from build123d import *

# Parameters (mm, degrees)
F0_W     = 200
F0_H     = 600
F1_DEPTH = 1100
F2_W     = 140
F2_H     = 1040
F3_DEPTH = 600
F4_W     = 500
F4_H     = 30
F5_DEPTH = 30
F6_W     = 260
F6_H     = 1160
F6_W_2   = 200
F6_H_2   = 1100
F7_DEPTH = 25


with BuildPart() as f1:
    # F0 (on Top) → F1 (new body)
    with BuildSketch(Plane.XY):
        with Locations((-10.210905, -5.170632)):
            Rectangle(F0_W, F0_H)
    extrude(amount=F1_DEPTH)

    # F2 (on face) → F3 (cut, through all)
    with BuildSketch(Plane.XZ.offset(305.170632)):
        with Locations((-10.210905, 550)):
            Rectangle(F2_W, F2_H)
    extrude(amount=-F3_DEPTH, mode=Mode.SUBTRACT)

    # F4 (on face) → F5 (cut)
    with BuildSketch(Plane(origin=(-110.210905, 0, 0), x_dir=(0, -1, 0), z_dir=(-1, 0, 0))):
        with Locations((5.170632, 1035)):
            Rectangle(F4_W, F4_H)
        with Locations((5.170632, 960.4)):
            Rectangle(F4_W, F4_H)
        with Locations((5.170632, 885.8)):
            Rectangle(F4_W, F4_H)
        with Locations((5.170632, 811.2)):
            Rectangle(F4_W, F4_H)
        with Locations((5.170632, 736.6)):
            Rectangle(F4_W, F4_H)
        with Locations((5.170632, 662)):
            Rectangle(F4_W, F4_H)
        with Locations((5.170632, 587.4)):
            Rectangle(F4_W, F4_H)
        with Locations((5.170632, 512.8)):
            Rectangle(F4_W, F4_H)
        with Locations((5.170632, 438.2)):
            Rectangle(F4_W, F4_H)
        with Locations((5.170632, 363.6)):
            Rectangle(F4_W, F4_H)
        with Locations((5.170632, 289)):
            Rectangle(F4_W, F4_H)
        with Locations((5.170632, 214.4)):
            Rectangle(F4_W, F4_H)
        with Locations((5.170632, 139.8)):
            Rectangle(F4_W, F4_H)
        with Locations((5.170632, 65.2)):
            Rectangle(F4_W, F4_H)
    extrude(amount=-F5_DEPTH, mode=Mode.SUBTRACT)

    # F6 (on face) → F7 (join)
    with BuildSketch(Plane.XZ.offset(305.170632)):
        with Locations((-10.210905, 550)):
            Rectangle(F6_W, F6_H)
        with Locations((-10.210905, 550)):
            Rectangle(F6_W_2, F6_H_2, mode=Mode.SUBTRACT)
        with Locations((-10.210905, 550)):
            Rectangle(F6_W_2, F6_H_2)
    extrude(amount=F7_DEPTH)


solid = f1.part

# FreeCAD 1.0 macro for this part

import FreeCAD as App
import Part
import Sketcher


def add_polygon(sketch, points):
    """Adds a closed chain of lines whose ends are joined by coincident constraints."""
    first, n = sketch.GeometryCount, len(points)
    for a, b in zip(points, points[1:] + points[:1]):
        sketch.addGeometry(Part.LineSegment(App.Vector(*a, 0), App.Vector(*b, 0)), False)
    for i in range(n):
        sketch.addConstraint(Sketcher.Constraint("Coincident", first + i, 2, first + (i + 1) % n, 1))

doc = App.newDocument("Part")
body = doc.addObject("PartDesign::Body", "Body")

# Sketch on XY plane
sketch1 = doc.addObject("Sketcher::SketchObject", "Sketch")
body.addObject(sketch1)
sketch1.AttachmentSupport = (doc.XY_Plane, [""])
sketch1.MapMode = "FlatFace"
add_polygon(sketch1, [(-110, 295), (-110, -305), (90, -305), (90, 295)])  # lines 0-3
sketch1.addConstraint([
    Sketcher.Constraint("Vertical", 0),
    Sketcher.Constraint("Horizontal", 1),
    Sketcher.Constraint("Vertical", 2),
    Sketcher.Constraint("Horizontal", 3),
    Sketcher.Constraint("DistanceX", 1, 1, 1, 2, 200.0),
    Sketcher.Constraint("DistanceY", 0, 2, 0, 1, 600.0),
    Sketcher.Constraint("DistanceY", 0, 2, -1, 1, 305.170632),
    Sketcher.Constraint("DistanceX", 0, 2, -1, 1, 110.210905),
])
pad1 = doc.addObject("PartDesign::Pad", "Pad")
body.addObject(pad1)
pad1.Profile = sketch1
pad1.Length = 1100

# Sketch on XZ plane
sketch2 = doc.addObject("Sketcher::SketchObject", "Sketch001")
body.addObject(sketch2)
sketch2.AttachmentSupport = (doc.XZ_Plane, [""])
sketch2.MapMode = "FlatFace"
sketch2.AttachmentOffset = App.Placement(App.Vector(0, 0, 305.170632), App.Rotation())
add_polygon(sketch2, [(-80, 1070), (-80, 30), (60, 30), (60, 1070)])  # lines 0-3
sketch2.addConstraint([
    Sketcher.Constraint("Vertical", 0),
    Sketcher.Constraint("Horizontal", 1),
    Sketcher.Constraint("Vertical", 2),
    Sketcher.Constraint("Horizontal", 3),
    Sketcher.Constraint("DistanceX", 1, 1, 1, 2, 140.0),
    Sketcher.Constraint("DistanceY", 0, 2, 0, 1, 1040.0),
    Sketcher.Constraint("DistanceY", -1, 1, 0, 2, 30.0),
    Sketcher.Constraint("DistanceX", 0, 2, -1, 1, 80.210905),
])
pocket1 = doc.addObject("PartDesign::Pocket", "Pocket")
body.addObject(pocket1)
pocket1.Profile = sketch2
pocket1.Type = "ThroughAll"

# Sketch on YZ plane
sketch3 = doc.addObject("Sketcher::SketchObject", "Sketch002")
body.addObject(sketch3)
sketch3.AttachmentSupport = (doc.YZ_Plane, [""])
sketch3.MapMode = "FlatFace"
sketch3.AttachmentOffset = App.Placement(App.Vector(0, 0, -110.210905), App.Rotation())
add_polygon(sketch3, [(245, 1050), (245, 1020), (-255, 1020), (-255, 1050)])  # lines 0-3
add_polygon(sketch3, [(245, 975), (245, 945), (-255, 945), (-255, 975)])  # lines 4-7
add_polygon(sketch3, [(245, 901), (245, 871), (-255, 871), (-255, 901)])  # lines 8-11
add_polygon(sketch3, [(245, 826), (245, 796), (-255, 796), (-255, 826)])  # lines 12-15
add_polygon(sketch3, [(245, 752), (245, 722), (-255, 722), (-255, 752)])  # lines 16-19
add_polygon(sketch3, [(245, 677), (245, 647), (-255, 647), (-255, 677)])  # lines 20-23
add_polygon(sketch3, [(245, 602), (245, 572), (-255, 572), (-255, 602)])  # lines 24-27
add_polygon(sketch3, [(245, 528), (245, 498), (-255, 498), (-255, 528)])  # lines 28-31
add_polygon(sketch3, [(245, 453), (245, 423), (-255, 423), (-255, 453)])  # lines 32-35
add_polygon(sketch3, [(245, 379), (245, 349), (-255, 349), (-255, 379)])  # lines 36-39
add_polygon(sketch3, [(245, 304), (245, 274), (-255, 274), (-255, 304)])  # lines 40-43
add_polygon(sketch3, [(245, 229), (245, 199), (-255, 199), (-255, 229)])  # lines 44-47
add_polygon(sketch3, [(245, 155), (245, 125), (-255, 125), (-255, 155)])  # lines 48-51
add_polygon(sketch3, [(245, 80), (245, 50), (-255, 50), (-255, 80)])  # lines 52-55
sketch3.addConstraint([
    Sketcher.Constraint("Vertical", 0),
    Sketcher.Constraint("Horizontal", 1),
    Sketcher.Constraint("Vertical", 2),
    Sketcher.Constraint("Horizontal", 3),
    Sketcher.Constraint("Vertical", 4),
    Sketcher.Constraint("Horizontal", 5),
    Sketcher.Constraint("Vertical", 6),
    Sketcher.Constraint("Horizontal", 7),
    Sketcher.Constraint("Vertical", 8),
    Sketcher.Constraint("Horizontal", 9),
    Sketcher.Constraint("Vertical", 10),
    Sketcher.Constraint("Horizontal", 11),
    Sketcher.Constraint("Vertical", 12),
    Sketcher.Constraint("Horizontal", 13),
    Sketcher.Constraint("Vertical", 14),
    Sketcher.Constraint("Horizontal", 15),
    Sketcher.Constraint("Vertical", 16),
    Sketcher.Constraint("Horizontal", 17),
    Sketcher.Constraint("Vertical", 18),
    Sketcher.Constraint("Horizontal", 19),
    Sketcher.Constraint("Vertical", 20),
    Sketcher.Constraint("Horizontal", 21),
    Sketcher.Constraint("Vertical", 22),
    Sketcher.Constraint("Horizontal", 23),
    Sketcher.Constraint("Vertical", 24),
    Sketcher.Constraint("Horizontal", 25),
    Sketcher.Constraint("Vertical", 26),
    Sketcher.Constraint("Horizontal", 27),
    Sketcher.Constraint("Vertical", 28),
    Sketcher.Constraint("Horizontal", 29),
    Sketcher.Constraint("Vertical", 30),
    Sketcher.Constraint("Horizontal", 31),
    Sketcher.Constraint("Vertical", 32),
    Sketcher.Constraint("Horizontal", 33),
    Sketcher.Constraint("Vertical", 34),
    Sketcher.Constraint("Horizontal", 35),
    Sketcher.Constraint("Vertical", 36),
    Sketcher.Constraint("Horizontal", 37),
    Sketcher.Constraint("Vertical", 38),
    Sketcher.Constraint("Horizontal", 39),
    Sketcher.Constraint("Vertical", 40),
    Sketcher.Constraint("Horizontal", 41),
    Sketcher.Constraint("Vertical", 42),
    Sketcher.Constraint("Horizontal", 43),
    Sketcher.Constraint("Vertical", 44),
    Sketcher.Constraint("Horizontal", 45),
    Sketcher.Constraint("Vertical", 46),
    Sketcher.Constraint("Horizontal", 47),
    Sketcher.Constraint("Vertical", 48),
    Sketcher.Constraint("Horizontal", 49),
    Sketcher.Constraint("Vertical", 50),
    Sketcher.Constraint("Horizontal", 51),
    Sketcher.Constraint("Vertical", 52),
    Sketcher.Constraint("Horizontal", 53),
    Sketcher.Constraint("Vertical", 54),
    Sketcher.Constraint("Horizontal", 55),
    Sketcher.Constraint("Vertical", 3, 2, 4, 2),
    Sketcher.Constraint("Vertical", 2, 2, 5, 2),
    Sketcher.Constraint("Vertical", 7, 2, 8, 2),
    Sketcher.Constraint("Vertical", 6, 2, 9, 2),
    Sketcher.Constraint("Vertical", 11, 2, 12, 2),
    Sketcher.Constraint("Vertical", 10, 2, 13, 2),
    Sketcher.Constraint("Vertical", 15, 2, 16, 2),
    Sketcher.Constraint("Vertical", 14, 2, 17, 2),
    Sketcher.Constraint("Vertical", 19, 2, 20, 2),
    Sketcher.Constraint("Vertical", 18, 2, 21, 2),
    Sketcher.Constraint("Vertical", 23, 2, 24, 2),
    Sketcher.Constraint("Vertical", 22, 2, 25, 2),
    Sketcher.Constraint("Vertical", 27, 2, 28, 2),
    Sketcher.Constraint("Vertical", 26, 2, 29, 2),
    Sketcher.Constraint("Vertical", 31, 2, 32, 2),
    Sketcher.Constraint("Vertical", 30, 2, 33, 2),
    Sketcher.Constraint("Vertical", 35, 2, 36, 2),
    Sketcher.Constraint("Vertical", 34, 2, 37, 2),
    Sketcher.Constraint("Vertical", 39, 2, 40, 2),
    Sketcher.Constraint("Vertical", 38, 2, 41, 2),
    Sketcher.Constraint("Vertical", 43, 2, 44, 2),
    Sketcher.Constraint("Vertical", 42, 2, 45, 2),
    Sketcher.Constraint("Vertical", 47, 2, 48, 2),
    Sketcher.Constraint("Vertical", 46, 2, 49, 2),
    Sketcher.Constraint("Vertical", 51, 2, 52, 2),
    Sketcher.Constraint("Vertical", 50, 2, 53, 2),
    Sketcher.Constraint("Equal", 2, 4),
    Sketcher.Constraint("Equal", 6, 8),
    Sketcher.Constraint("Equal", 10, 12),
    Sketcher.Constraint("Equal", 14, 16),
    Sketcher.Constraint("Equal", 18, 20),
    Sketcher.Constraint("Equal", 22, 24),
    Sketcher.Constraint("Equal", 26, 28),
    Sketcher.Constraint("Equal", 30, 32),
    Sketcher.Constraint("Equal", 34, 36),
    Sketcher.Constraint("Equal", 38, 40),
    Sketcher.Constraint("Equal", 42, 44),
    Sketcher.Constraint("Equal", 46, 48),
    Sketcher.Constraint("Equal", 50, 52),
    Sketcher.Constraint("DistanceX", 1, 2, 1, 1, 500.0),
    Sketcher.Constraint("DistanceY", 0, 2, 0, 1, 30.0),
    Sketcher.Constraint("DistanceY", -1, 1, 0, 2, 1020.0),
    Sketcher.Constraint("DistanceY", -1, 1, 20, 2, 647.0),
    Sketcher.Constraint("DistanceY", -1, 1, 40, 2, 274.0),
    Sketcher.Constraint("DistanceY", -1, 1, 4, 2, 945.4),
    Sketcher.Constraint("DistanceY", -1, 1, 8, 2, 870.8),
    Sketcher.Constraint("DistanceY", -1, 1, 12, 2, 796.2),
    Sketcher.Constraint("DistanceY", -1, 1, 16, 2, 721.6),
    Sketcher.Constraint("DistanceY", -1, 1, 24, 2, 572.4),
    Sketcher.Constraint("DistanceY", -1, 1, 28, 2, 497.8),
    Sketcher.Constraint("DistanceY", -1, 1, 32, 2, 423.2),
    Sketcher.Constraint("DistanceY", -1, 1, 36, 2, 348.6),
    Sketcher.Constraint("DistanceY", -1, 1, 44, 2, 199.4),
    Sketcher.Constraint("DistanceY", -1, 1, 48, 2, 124.8),
    Sketcher.Constraint("DistanceY", -1, 1, 52, 2, 50.2),
    Sketcher.Constraint("DistanceX", -1, 1, 0, 2, 244.829368),
])
pocket2 = doc.addObject("PartDesign::Pocket", "Pocket001")
body.addObject(pocket2)
pocket2.Profile = sketch3
pocket2.Length = 30
pocket2.Reversed = True

# Sketch on XZ plane
sketch4 = doc.addObject("Sketcher::SketchObject", "Sketch003")
body.addObject(sketch4)
sketch4.AttachmentSupport = (doc.XZ_Plane, [""])
sketch4.MapMode = "FlatFace"
sketch4.AttachmentOffset = App.Placement(App.Vector(0, 0, 305.170632), App.Rotation())
add_polygon(sketch4, [(-140, 1130), (-140, -30), (120, -30), (120, 1130)])  # lines 0-3
sketch4.addConstraint([
    Sketcher.Constraint("Vertical", 0),
    Sketcher.Constraint("Horizontal", 1),
    Sketcher.Constraint("Vertical", 2),
    Sketcher.Constraint("Horizontal", 3),
    Sketcher.Constraint("DistanceX", 1, 1, 1, 2, 260.0),
    Sketcher.Constraint("DistanceY", 0, 2, 0, 1, 1160.0),
    Sketcher.Constraint("DistanceY", 0, 2, -1, 1, 30.0),
    Sketcher.Constraint("DistanceX", 0, 2, -1, 1, 140.210905),
])
pad2 = doc.addObject("PartDesign::Pad", "Pad001")
body.addObject(pad2)
pad2.Profile = sketch4
pad2.Length = 25

doc.recompute()
